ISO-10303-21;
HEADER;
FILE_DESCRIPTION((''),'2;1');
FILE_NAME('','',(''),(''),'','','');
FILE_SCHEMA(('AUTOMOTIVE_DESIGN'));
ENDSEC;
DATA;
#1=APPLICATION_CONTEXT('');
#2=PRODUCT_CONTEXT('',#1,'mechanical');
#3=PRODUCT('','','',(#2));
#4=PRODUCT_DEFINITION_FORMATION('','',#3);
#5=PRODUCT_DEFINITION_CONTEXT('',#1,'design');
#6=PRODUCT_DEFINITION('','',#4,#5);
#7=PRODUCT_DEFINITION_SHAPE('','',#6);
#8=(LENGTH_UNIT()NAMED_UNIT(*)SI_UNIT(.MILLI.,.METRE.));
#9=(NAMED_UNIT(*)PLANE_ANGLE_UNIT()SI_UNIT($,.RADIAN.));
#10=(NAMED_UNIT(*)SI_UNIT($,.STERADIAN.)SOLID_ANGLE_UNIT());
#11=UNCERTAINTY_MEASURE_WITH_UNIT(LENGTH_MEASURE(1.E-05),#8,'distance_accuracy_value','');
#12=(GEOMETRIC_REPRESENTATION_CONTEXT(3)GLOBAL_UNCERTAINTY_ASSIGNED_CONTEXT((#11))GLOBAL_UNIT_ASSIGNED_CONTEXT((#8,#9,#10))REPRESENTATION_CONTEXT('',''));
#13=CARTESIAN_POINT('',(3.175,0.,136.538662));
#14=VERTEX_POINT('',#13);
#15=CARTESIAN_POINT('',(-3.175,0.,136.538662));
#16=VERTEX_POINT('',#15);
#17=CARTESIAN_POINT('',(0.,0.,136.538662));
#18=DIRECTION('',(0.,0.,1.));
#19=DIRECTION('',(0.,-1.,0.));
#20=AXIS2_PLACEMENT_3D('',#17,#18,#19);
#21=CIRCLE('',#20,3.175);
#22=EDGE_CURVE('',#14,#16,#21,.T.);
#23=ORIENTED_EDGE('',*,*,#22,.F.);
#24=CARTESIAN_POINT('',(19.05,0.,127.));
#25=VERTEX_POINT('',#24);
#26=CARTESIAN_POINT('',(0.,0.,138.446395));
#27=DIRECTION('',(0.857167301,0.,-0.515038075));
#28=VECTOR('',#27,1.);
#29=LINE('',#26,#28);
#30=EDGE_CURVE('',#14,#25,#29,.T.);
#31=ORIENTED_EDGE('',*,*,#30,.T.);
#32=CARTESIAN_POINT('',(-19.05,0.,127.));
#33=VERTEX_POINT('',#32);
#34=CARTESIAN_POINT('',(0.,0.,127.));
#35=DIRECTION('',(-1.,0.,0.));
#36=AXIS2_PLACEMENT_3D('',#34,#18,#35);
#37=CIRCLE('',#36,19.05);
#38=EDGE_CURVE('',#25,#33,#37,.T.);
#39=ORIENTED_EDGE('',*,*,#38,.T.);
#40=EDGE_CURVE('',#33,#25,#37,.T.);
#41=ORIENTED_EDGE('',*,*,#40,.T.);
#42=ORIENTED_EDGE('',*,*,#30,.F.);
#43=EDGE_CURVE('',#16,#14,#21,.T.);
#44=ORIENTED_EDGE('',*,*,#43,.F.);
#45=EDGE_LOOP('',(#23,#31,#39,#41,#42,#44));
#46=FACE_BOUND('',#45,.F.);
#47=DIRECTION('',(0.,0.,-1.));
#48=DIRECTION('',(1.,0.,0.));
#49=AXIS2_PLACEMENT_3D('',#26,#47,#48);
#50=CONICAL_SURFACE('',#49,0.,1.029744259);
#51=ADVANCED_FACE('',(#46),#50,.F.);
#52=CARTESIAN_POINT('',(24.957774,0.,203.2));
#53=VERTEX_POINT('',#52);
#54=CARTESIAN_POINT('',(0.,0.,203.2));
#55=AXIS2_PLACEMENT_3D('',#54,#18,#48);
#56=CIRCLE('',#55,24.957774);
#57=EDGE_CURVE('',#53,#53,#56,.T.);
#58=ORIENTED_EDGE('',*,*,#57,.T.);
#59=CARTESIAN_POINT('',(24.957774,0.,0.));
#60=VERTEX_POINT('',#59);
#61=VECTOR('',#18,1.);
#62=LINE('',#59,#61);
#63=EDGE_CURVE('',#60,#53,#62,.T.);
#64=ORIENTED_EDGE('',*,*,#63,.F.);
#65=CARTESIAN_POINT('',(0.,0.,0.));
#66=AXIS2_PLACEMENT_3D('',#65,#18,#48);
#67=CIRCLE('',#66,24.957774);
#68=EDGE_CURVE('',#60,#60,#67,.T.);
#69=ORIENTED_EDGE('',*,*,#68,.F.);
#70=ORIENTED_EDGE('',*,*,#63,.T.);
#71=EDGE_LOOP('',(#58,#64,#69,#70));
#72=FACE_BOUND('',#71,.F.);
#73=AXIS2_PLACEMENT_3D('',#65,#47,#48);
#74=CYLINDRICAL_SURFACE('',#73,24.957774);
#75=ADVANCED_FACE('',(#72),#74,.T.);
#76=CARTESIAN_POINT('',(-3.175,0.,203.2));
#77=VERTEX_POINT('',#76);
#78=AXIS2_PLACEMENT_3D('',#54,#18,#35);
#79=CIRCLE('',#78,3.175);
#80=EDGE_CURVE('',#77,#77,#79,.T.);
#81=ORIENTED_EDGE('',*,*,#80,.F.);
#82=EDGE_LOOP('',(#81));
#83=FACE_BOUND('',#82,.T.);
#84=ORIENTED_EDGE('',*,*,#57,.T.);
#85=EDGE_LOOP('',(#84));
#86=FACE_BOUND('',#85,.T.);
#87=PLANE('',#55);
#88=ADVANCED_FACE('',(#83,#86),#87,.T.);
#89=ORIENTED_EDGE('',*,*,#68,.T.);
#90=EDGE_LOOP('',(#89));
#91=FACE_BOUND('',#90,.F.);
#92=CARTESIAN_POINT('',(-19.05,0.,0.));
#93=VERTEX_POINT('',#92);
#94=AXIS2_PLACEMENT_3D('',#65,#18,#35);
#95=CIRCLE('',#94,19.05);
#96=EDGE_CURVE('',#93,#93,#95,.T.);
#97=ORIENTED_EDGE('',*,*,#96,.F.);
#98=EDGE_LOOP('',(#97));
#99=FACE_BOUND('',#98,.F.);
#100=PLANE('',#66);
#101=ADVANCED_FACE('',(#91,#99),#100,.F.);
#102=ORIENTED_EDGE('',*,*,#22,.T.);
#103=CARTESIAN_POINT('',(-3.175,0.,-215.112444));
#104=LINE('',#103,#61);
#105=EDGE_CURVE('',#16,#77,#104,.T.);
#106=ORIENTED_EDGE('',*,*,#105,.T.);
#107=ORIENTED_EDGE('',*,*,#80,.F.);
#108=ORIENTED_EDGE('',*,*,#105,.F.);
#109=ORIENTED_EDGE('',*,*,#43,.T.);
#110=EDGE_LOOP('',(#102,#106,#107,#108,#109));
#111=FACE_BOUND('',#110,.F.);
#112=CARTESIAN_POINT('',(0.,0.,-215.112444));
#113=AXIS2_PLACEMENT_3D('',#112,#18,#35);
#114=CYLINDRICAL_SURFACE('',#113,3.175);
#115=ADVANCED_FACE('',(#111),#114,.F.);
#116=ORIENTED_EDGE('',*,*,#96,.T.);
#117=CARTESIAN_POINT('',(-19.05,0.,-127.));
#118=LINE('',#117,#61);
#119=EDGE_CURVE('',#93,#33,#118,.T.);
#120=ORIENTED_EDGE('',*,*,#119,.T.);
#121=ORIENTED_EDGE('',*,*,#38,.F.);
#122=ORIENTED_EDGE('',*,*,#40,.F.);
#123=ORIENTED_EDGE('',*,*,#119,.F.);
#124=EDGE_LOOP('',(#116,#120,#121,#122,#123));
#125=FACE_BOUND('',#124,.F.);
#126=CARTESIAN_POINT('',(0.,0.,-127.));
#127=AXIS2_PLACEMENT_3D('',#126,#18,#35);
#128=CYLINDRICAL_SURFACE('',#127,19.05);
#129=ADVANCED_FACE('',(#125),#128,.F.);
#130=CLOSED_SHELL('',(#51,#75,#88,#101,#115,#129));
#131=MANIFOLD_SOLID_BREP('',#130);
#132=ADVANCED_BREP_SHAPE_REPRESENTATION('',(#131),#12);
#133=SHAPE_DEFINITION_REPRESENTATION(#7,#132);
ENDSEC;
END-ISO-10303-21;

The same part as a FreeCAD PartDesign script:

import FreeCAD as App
import Part
import Sketcher
Q = App.Units.Quantity

doc = App.newDocument("Part")
body = doc.addObject("PartDesign::Body", "Body")

# Sketch on XY plane
sketch1 = body.newObject("Sketcher::SketchObject", "Sketch")
sketch1.AttachmentSupport = (doc.getObject("XY_Plane"), [""])
sketch1.MapMode = "FlatFace"
sketch1.addGeometry(Part.Circle(App.Vector(0, 0, 0), App.Vector(0, 0, 1), 25), False)
sketch1.addConstraint(Sketcher.Constraint("Coincident", 0, 3, -1, 1))
sketch1.addConstraint(Sketcher.Constraint("Diameter", 0, 49.915547))
pad1 = body.newObject("PartDesign::Pad", "Pad")
pad1.Profile = sketch1
pad1.Length = Q("8 in")

# Sketch on XY plane
sketch2 = body.newObject("Sketcher::SketchObject", "Sketch001")
sketch2.AttachmentSupport = (doc.getObject("XY_Plane"), [""])
sketch2.MapMode = "FlatFace"
sketch2.addGeometry(Part.Circle(App.Vector(0, 0, 0), App.Vector(0, 0, 1), 19), False)
sketch2.addConstraint(Sketcher.Constraint("Coincident", 0, 3, -1, 1))
sketch2.addConstraint(Sketcher.Constraint("Diameter", 0, Q("1.5 in")))
doc.recompute()
hole = body.newObject("PartDesign::Hole", "Hole")
hole.Profile = sketch2
hole.ThreadType = "None"
hole.Diameter = Q("1.5 in")
hole.DepthType = "Dimension"
hole.Depth = Q("5 in")
hole.DrillPoint = "Angled"
hole.DrillPointAngle = 118
hole.Reversed = True

# Sketch on XY plane
sketch3 = body.newObject("Sketcher::SketchObject", "Sketch002")
sketch3.AttachmentSupport = (doc.getObject("XY_Plane"), [""])
sketch3.MapMode = "FlatFace"
sketch3.addGeometry(Part.Circle(App.Vector(0, 0, 0), App.Vector(0, 0, 1), 3.2), False)
sketch3.addConstraint(Sketcher.Constraint("Coincident", 0, 3, -1, 1))
sketch3.addConstraint(Sketcher.Constraint("Diameter", 0, Q("0.25 in")))
doc.recompute()
hole2 = body.newObject("PartDesign::Hole", "Hole001")
hole2.Profile = sketch3
hole2.ThreadType = "None"
hole2.Diameter = Q("0.25 in")
hole2.DepthType = "ThroughAll"
hole2.Reversed = True

doc.recompute()
